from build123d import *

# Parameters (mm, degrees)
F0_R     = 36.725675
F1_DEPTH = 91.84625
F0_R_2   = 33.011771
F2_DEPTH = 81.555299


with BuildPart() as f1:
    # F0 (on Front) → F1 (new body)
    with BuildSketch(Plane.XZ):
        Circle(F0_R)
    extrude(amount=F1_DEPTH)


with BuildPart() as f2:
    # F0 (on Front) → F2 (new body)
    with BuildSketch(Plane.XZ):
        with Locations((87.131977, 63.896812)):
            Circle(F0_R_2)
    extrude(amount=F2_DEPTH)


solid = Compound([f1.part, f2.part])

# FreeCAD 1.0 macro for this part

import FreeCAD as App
import Part
import Sketcher
from FreeCAD import Vector

doc = App.newDocument("Part")
body = doc.addObject("PartDesign::Body", "Body")

sketch1 = body.newObject("Sketcher::SketchObject", "Sketch")
sketch1.AttachmentSupport = (doc.getObject("XZ_Plane"), [""])
sketch1.MapMode = "FlatFace"
sketch1.addGeometry(Part.Circle(Vector(0, 0, 0), Vector(0, 0, 1), 37), False)
sketch1.addConstraint([
    Sketcher.Constraint("Coincident", 0, 3, -1, 1),
    Sketcher.Constraint("Diameter", 0, 73.45135),
])
pad1 = body.newObject("PartDesign::Pad", "Pad")
pad1.Profile = sketch1
pad1.Length = 91.84625
body2 = doc.addObject("PartDesign::Body", "Body001")

sketch2 = body2.newObject("Sketcher::SketchObject", "Sketch001")
sketch2.AttachmentSupport = (doc.getObject("XZ_Plane001"), [""])
sketch2.MapMode = "FlatFace"
sketch2.addGeometry(Part.Circle(Vector(87, 64, 0), Vector(0, 0, 1), 33), False)
sketch2.addConstraint([
    Sketcher.Constraint("Diameter", 0, 66.023542),
    Sketcher.Constraint("DistanceY", -1, 1, 0, 3, 63.896812),
    Sketcher.Constraint("DistanceX", -1, 1, 0, 3, 87.131977),
])
pad2 = body2.newObject("PartDesign::Pad", "Pad001")
pad2.Profile = sketch2
pad2.Length = 81.555299

doc.recompute()
